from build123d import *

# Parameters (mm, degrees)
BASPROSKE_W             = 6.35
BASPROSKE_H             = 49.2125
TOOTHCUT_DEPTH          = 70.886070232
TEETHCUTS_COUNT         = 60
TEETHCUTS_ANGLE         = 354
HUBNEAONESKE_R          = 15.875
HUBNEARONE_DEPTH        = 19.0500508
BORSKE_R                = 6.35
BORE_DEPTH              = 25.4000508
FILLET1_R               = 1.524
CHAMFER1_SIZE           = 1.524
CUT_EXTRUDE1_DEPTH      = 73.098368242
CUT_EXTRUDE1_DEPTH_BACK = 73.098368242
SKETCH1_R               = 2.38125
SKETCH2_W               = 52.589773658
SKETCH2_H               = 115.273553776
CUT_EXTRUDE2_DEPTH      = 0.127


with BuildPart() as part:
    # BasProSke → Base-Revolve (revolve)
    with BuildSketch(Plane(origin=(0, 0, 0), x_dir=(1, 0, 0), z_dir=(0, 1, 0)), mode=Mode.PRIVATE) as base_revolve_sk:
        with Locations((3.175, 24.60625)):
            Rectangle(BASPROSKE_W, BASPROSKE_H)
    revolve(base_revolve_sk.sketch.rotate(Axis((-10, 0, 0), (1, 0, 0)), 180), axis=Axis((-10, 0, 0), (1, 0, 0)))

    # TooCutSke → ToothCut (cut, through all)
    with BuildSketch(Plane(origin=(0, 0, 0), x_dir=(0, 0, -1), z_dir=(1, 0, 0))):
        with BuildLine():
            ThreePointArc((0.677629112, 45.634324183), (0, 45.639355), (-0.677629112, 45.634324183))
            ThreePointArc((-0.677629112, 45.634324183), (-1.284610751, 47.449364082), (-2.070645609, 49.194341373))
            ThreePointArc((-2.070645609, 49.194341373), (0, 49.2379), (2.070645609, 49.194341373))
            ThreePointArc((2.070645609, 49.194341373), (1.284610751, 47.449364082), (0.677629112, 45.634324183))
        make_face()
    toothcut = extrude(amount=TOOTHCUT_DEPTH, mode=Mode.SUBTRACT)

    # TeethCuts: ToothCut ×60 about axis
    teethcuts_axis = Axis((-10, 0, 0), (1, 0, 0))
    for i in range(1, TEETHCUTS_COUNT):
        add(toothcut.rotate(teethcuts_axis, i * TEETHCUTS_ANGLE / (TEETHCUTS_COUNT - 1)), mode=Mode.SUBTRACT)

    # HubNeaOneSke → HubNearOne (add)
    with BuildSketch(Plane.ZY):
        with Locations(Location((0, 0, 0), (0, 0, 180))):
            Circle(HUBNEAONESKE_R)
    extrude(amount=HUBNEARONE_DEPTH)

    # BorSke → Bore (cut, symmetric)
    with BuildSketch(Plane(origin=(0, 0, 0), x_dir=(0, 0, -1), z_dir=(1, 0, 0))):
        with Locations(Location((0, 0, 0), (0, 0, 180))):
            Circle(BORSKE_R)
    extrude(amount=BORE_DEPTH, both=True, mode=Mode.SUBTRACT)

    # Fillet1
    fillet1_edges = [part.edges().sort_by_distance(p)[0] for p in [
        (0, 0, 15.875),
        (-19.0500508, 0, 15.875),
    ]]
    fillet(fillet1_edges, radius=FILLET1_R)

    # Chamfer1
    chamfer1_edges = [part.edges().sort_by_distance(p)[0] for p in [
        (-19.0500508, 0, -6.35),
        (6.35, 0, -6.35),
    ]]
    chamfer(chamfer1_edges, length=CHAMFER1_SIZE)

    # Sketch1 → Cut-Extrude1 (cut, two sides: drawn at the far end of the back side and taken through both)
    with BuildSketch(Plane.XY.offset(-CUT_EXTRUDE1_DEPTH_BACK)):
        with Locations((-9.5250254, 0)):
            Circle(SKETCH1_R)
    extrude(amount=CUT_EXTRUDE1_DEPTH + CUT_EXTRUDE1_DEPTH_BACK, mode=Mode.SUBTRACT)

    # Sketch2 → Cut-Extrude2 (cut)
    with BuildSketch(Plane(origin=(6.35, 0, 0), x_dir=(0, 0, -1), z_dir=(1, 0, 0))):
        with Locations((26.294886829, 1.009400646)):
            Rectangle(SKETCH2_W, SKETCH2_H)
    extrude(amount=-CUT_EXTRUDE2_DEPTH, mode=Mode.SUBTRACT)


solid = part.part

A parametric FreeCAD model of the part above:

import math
import FreeCAD as App
import Part
import Sketcher
from FreeCAD import Vector
Q = App.Units.Quantity


def edges_at(feature, points):
    """Names of the edges that pass closest to the given points."""
    edges = feature.Shape.Edges
    near = lambda p: min(range(len(edges)), key=lambda i: edges[i].distToShape(Part.Vertex(*p))[0])
    return sorted({f"Edge{near(p) + 1}" for p in points})


def add_polygon(sketch, points):
    """Adds a closed chain of lines whose ends are joined by coincident constraints."""
    first, n = sketch.GeometryCount, len(points)
    for a, b in zip(points, points[1:] + points[:1]):
        sketch.addGeometry(Part.LineSegment(App.Vector(*a, 0), App.Vector(*b, 0)), False)
    for i in range(n):
        sketch.addConstraint(Sketcher.Constraint("Coincident", first + i, 2, first + (i + 1) % n, 1))

doc = App.newDocument("Part")
body = doc.addObject("PartDesign::Body", "Body")

sketch1 = body.newObject("Sketcher::SketchObject", "Sketch")
sketch1.AttachmentSupport = (doc.getObject("XZ_Plane"), [""])
sketch1.MapMode = "FlatFace"
add_polygon(sketch1, [(0, -49), (0, 0), (6, 0), (6, -49)])
sketch1.addConstraint([
    Sketcher.Constraint("Vertical", 0),
    Sketcher.Constraint("Horizontal", 1),
    Sketcher.Constraint("Vertical", 2),
    Sketcher.Constraint("Horizontal", 3),
    Sketcher.Constraint("Coincident", 0, 2, -1, 1),
    Sketcher.Constraint("DistanceX", 1, 1, 1, 2, Q("0.25 in")),
    Sketcher.Constraint("DistanceY", 0, 1, 0, 2, Q("1.9375 in")),
])
revolution = body.newObject("PartDesign::Revolution", "Revolution")
revolution.Profile = sketch1
revolution.ReferenceAxis = (sketch1, ["H_Axis"])
revolution.Angle = 360

sketch2 = body.newObject("Sketcher::SketchObject", "Sketch001")
sketch2.AttachmentSupport = (doc.getObject("YZ_Plane"), [""])
sketch2.MapMode = "FlatFace"
sketch2.addGeometry([
    Part.ArcOfCircle(Part.Circle(Vector(0, 0, 0), Vector(0, 0, 1), 45.6), math.radians(-0.85), math.radians(0.85)),
    Part.ArcOfCircle(Part.Circle(Vector(40.5, -19, 0), Vector(0, 0, 1), 19), math.radians(62.87), math.radians(74.39)),
    Part.ArcOfCircle(Part.Circle(Vector(0, 0, 0), Vector(0, 0, 1), 49.2), math.radians(-2.41), math.radians(2.41)),
    Part.ArcOfCircle(Part.Circle(Vector(40.5, 19, 0), Vector(0, 0, 1), 19), math.radians(-74.39), math.radians(-62.87)),
], False)
sketch2.addConstraint([
    Sketcher.Constraint("Coincident", 0, 1, 1, 2),
    Sketcher.Constraint("Coincident", 1, 1, 2, 1),
    Sketcher.Constraint("Coincident", 2, 2, 3, 2),
    Sketcher.Constraint("Coincident", 3, 1, 0, 2),
    Sketcher.Constraint("Coincident", 0, 3, -1, 1),
    Sketcher.Constraint("Coincident", 2, 3, -1, 1),
    Sketcher.Constraint("Equal", 1, 3),
    Sketcher.Constraint("Symmetric", 1, 3, 3, 3, -1),
    Sketcher.Constraint("Radius", 1, Q("0.75 in")),
    Sketcher.Constraint("Radius", 2, Q("1.9385 in")),
    Sketcher.Constraint("Radius", 0, 45.639359),
    Sketcher.Constraint("DistanceX", 2, 3, 1, 3, 40.507702),
    Sketcher.Constraint("DistanceY", 0, 1, -1, 1, 0.677629),
])
pocket1 = body.newObject("PartDesign::Pocket", "Pocket")
pocket1.Profile = sketch2
pocket1.Type = "ThroughAll"
pocket1.Reversed = True
doc.recompute()

polarpattern = body.newObject("PartDesign::PolarPattern", "PolarPattern")
polarpattern.Originals = [pocket1]
polarpattern.Axis = (doc.getObject("X_Axis"), [""])
polarpattern.Angle = 360
polarpattern.Occurrences = 60
body.Tip = polarpattern

sketch3 = body.newObject("Sketcher::SketchObject", "Sketch002")
sketch3.AttachmentSupport = (doc.getObject("YZ_Plane"), [""])
sketch3.MapMode = "FlatFace"
sketch3.addGeometry(Part.Circle(Vector(0, 0, 0), Vector(0, 0, 1), 16), False)
sketch3.addConstraint([
    Sketcher.Constraint("Coincident", 0, 3, -1, 1),
    Sketcher.Constraint("Diameter", 0, Q("1.25 in")),
])
pad1 = body.newObject("PartDesign::Pad", "Pad")
pad1.Profile = sketch3
pad1.Length = 19.050051
pad1.Reversed = True

sketch4 = body.newObject("Sketcher::SketchObject", "Sketch003")
sketch4.AttachmentSupport = (doc.getObject("YZ_Plane"), [""])
sketch4.MapMode = "FlatFace"
sketch4.addGeometry(Part.Circle(Vector(0, 0, 0), Vector(0, 0, 1), 6), False)
sketch4.addConstraint([
    Sketcher.Constraint("Coincident", 0, 3, -1, 1),
    Sketcher.Constraint("Diameter", 0, Q("0.5 in")),
])
pocket2 = body.newObject("PartDesign::Pocket", "Pocket001")
pocket2.Profile = sketch4
pocket2.Length = 50.800102
pocket2.Midplane = True
doc.recompute()

fillet = body.newObject("PartDesign::Fillet", "Fillet")
fillet.Base = (pocket2, edges_at(pocket2, [(0, 0, 15.875), (-19.05, 0, 15.875)]))
fillet.Radius = Q("0.06 in")
doc.recompute()

chamfer = body.newObject("PartDesign::Chamfer", "Chamfer")
chamfer.Base = (fillet, edges_at(fillet, [(-19.05, 0, -6.35), (6.35, 0, -6.35)]))
chamfer.Size = Q("0.06 in")

sketch5 = body.newObject("Sketcher::SketchObject", "Sketch004")
sketch5.AttachmentSupport = (doc.getObject("XY_Plane"), [""])
sketch5.MapMode = "FlatFace"
sketch5.addGeometry(Part.Circle(Vector(-9.5, 0, 0), Vector(0, 0, 1), 2.4), False)
sketch5.addConstraint([
    Sketcher.Constraint("PointOnObject", 0, 3, -1),
    Sketcher.Constraint("Diameter", 0, Q("0.1875 in")),
    Sketcher.Constraint("DistanceX", 0, 3, -1, 1, 9.525025),
])
pocket3 = body.newObject("PartDesign::Pocket", "Pocket002")
pocket3.Profile = sketch5
pocket3.Type = "ThroughAll"
pocket3.Midplane = True

sketch6 = body.newObject("Sketcher::SketchObject", "Sketch005")
sketch6.AttachmentSupport = (doc.getObject("YZ_Plane"), [""])
sketch6.MapMode = "FlatFace"
sketch6.AttachmentOffset = App.Placement(Vector(0, 0, 0.25 * 25.4), App.Rotation())
add_polygon(sketch6, [(59, 0), (-57, 0), (-57, -53), (59, -53)])
sketch6.addConstraint([
    Sketcher.Constraint("Horizontal", 0),
    Sketcher.Constraint("Vertical", 1),
    Sketcher.Constraint("Horizontal", 2),
    Sketcher.Constraint("Vertical", 3),
    Sketcher.Constraint("PointOnObject", 0, 2, -1),
    Sketcher.Constraint("DistanceX", 0, 2, 0, 1, 115.273554),
    Sketcher.Constraint("DistanceY", 1, 2, 1, 1, 52.589774),
    Sketcher.Constraint("DistanceX", 0, 2, -1, 1, 56.627376),
])
pocket4 = body.newObject("PartDesign::Pocket", "Pocket003")
pocket4.Profile = sketch6
pocket4.Length = Q("0.005 in")

doc.recompute()
